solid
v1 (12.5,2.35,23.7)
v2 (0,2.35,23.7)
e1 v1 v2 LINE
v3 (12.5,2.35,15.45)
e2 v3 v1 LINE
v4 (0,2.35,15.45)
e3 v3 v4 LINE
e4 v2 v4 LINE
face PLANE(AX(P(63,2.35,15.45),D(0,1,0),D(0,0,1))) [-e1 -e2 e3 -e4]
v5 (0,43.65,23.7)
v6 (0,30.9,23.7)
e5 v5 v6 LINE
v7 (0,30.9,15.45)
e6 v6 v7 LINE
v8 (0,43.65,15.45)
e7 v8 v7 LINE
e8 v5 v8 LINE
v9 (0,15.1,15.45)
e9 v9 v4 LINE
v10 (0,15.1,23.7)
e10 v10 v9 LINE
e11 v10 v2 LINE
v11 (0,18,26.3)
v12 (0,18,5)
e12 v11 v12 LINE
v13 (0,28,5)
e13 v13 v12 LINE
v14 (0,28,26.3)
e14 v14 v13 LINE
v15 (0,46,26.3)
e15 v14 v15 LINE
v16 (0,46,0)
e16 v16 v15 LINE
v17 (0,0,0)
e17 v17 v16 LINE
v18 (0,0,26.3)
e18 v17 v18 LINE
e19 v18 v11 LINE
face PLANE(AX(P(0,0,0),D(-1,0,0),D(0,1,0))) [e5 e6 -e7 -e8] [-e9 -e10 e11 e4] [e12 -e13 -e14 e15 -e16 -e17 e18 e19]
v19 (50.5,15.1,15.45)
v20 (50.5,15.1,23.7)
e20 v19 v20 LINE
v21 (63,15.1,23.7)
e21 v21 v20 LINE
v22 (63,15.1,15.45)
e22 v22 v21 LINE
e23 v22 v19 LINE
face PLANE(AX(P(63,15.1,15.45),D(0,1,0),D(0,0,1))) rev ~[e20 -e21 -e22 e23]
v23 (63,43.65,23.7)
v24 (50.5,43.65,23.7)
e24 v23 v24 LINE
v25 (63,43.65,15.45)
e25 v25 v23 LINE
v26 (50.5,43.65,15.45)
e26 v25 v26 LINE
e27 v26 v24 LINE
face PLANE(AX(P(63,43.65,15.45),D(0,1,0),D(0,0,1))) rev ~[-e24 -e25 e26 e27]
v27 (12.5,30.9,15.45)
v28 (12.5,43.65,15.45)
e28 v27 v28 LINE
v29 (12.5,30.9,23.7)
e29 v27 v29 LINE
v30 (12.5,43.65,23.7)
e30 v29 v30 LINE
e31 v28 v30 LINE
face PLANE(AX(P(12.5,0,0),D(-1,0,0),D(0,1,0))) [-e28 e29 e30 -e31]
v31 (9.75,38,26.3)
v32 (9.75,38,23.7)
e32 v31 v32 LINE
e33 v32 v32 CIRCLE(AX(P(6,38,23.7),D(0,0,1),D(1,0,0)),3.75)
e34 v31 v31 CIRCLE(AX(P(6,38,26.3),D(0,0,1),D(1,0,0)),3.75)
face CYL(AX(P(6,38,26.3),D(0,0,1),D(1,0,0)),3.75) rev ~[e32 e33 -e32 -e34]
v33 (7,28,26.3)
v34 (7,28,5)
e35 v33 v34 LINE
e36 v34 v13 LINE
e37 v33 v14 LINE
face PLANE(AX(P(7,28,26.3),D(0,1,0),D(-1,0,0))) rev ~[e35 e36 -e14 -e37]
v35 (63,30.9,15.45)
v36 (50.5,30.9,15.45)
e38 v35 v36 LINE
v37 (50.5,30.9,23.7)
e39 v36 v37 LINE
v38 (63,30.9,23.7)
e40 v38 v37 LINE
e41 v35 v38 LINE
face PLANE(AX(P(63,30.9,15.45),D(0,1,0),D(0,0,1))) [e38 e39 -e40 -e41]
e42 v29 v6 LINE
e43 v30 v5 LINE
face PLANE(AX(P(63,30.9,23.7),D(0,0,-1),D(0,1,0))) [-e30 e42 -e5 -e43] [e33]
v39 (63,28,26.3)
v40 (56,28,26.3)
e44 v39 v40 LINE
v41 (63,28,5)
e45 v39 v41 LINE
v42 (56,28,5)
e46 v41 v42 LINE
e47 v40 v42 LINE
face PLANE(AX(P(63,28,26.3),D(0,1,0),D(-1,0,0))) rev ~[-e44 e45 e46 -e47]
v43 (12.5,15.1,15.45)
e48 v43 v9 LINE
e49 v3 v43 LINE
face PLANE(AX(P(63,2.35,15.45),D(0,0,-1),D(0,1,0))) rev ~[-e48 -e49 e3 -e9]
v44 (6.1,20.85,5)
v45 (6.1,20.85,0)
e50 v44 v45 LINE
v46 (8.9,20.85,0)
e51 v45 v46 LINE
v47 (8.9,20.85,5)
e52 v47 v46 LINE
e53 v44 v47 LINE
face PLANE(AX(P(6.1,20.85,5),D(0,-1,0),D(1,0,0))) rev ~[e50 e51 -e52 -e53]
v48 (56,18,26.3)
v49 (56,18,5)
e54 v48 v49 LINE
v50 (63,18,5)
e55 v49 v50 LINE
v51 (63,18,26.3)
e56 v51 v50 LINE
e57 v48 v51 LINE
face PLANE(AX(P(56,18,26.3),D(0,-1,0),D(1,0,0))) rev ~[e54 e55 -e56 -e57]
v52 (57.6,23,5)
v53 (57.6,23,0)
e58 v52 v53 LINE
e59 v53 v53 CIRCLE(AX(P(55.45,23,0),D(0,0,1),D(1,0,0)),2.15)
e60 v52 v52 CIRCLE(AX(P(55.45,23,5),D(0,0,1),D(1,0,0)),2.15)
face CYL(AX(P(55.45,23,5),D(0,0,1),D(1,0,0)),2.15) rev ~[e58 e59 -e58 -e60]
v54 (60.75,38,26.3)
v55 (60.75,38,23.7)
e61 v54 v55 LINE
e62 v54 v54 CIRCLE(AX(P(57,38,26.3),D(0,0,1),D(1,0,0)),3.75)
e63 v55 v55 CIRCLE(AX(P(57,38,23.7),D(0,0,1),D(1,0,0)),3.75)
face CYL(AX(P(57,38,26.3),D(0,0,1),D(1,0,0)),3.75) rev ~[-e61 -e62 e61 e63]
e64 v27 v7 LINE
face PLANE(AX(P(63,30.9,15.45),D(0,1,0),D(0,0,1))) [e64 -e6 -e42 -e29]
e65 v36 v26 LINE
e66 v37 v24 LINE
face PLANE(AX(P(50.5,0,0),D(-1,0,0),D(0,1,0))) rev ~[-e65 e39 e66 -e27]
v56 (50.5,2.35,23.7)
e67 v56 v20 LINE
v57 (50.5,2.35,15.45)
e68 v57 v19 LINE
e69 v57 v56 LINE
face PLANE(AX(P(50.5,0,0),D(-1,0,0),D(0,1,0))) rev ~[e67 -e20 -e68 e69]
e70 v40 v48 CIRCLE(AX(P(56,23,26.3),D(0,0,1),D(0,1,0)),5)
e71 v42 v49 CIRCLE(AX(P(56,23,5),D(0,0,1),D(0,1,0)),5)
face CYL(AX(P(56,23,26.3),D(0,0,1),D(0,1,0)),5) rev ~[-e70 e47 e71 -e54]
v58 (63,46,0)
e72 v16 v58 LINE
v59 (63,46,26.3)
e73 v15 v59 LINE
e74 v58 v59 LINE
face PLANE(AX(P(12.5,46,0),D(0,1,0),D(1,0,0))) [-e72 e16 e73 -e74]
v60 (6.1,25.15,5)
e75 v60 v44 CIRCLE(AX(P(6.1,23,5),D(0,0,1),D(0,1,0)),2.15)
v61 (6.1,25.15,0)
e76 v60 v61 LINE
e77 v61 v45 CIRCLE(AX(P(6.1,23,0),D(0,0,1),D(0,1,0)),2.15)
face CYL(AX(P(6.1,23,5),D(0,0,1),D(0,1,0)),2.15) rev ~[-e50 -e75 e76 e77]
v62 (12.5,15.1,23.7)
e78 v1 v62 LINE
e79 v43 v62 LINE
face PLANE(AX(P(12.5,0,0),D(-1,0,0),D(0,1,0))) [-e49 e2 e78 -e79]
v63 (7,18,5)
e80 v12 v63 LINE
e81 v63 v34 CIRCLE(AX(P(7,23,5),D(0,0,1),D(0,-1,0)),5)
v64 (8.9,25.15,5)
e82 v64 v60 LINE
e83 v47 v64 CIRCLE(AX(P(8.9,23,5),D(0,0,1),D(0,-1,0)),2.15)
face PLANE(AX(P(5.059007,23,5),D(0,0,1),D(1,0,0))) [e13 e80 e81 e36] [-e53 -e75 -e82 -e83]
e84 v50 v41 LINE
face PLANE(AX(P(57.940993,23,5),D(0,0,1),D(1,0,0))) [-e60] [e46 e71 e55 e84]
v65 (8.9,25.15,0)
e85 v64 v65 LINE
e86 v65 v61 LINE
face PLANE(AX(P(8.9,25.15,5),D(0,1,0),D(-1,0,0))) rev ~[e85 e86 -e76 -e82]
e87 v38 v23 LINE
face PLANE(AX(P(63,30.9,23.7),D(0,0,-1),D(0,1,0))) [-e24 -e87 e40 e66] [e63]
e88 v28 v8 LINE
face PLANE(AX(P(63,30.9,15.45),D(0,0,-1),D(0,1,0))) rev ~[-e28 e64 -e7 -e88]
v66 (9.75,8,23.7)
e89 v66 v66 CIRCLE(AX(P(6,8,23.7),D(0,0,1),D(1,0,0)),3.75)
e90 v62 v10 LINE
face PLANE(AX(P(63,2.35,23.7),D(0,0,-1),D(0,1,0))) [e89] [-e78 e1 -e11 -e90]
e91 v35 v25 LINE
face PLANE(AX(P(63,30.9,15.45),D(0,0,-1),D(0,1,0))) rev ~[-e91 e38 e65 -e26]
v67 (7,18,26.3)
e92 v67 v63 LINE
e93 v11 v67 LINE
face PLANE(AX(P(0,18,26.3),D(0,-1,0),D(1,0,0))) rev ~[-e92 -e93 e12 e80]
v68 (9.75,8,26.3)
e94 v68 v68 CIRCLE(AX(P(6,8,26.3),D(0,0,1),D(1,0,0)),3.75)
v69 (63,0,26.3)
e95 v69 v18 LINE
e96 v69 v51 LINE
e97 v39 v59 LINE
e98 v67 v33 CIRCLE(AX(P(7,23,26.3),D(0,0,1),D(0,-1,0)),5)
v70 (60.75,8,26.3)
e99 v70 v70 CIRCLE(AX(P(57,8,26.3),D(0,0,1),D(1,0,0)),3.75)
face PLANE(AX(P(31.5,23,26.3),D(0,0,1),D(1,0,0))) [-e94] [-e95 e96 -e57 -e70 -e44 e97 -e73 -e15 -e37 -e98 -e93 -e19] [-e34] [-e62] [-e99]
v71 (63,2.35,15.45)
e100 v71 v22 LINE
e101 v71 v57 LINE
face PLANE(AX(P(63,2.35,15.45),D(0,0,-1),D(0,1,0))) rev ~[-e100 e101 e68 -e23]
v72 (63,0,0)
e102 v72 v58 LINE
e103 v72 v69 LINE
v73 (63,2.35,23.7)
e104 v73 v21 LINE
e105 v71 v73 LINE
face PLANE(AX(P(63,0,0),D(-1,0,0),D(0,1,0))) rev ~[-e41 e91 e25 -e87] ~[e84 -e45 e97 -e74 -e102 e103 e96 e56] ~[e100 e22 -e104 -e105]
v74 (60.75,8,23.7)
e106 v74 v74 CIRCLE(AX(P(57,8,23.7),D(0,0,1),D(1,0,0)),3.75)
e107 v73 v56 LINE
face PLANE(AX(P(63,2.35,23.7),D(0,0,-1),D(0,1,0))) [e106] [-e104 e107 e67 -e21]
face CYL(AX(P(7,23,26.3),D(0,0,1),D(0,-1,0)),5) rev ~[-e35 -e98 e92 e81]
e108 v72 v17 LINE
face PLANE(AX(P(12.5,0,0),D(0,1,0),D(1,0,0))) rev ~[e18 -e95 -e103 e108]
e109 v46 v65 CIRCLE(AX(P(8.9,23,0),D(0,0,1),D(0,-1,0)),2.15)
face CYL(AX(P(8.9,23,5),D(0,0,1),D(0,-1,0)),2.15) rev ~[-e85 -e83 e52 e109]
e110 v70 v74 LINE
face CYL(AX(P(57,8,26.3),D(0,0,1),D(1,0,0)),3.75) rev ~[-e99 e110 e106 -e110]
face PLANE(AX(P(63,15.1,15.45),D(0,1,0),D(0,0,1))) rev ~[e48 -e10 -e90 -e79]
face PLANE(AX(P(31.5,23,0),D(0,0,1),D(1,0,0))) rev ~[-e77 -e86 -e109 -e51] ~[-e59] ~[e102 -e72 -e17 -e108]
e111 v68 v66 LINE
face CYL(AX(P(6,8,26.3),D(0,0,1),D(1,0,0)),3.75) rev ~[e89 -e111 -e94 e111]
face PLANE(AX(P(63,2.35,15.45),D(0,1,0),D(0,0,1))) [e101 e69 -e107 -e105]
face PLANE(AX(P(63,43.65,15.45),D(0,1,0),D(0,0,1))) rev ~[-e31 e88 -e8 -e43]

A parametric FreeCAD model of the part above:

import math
import FreeCAD as App
import Part
import Sketcher
from FreeCAD import Vector

doc = App.newDocument("Part")
body = doc.addObject("PartDesign::Body", "Body")

# Sketch on XY plane
sketch1 = doc.addObject("Sketcher::SketchObject", "Sketch")
body.addObject(sketch1)
sketch1.AttachmentSupport = (doc.XY_Plane, [""])
sketch1.MapMode = "FlatFace"
sketch1.addGeometry(Part.LineSegment(Vector(0, 46, 0), Vector(0, 0, 0)), False)
sketch1.addGeometry(Part.LineSegment(Vector(0, 0, 0), Vector(63, 0, 0)), False)
sketch1.addGeometry(Part.LineSegment(Vector(63, 0, 0), Vector(63, 46, 0)), False)
sketch1.addGeometry(Part.LineSegment(Vector(63, 46, 0), Vector(0, 46, 0)), False)
sketch1.addConstraint(Sketcher.Constraint("Coincident", 0, 2, 1, 1))
sketch1.addConstraint(Sketcher.Constraint("Coincident", 1, 2, 2, 1))
sketch1.addConstraint(Sketcher.Constraint("Coincident", 2, 2, 3, 1))
sketch1.addConstraint(Sketcher.Constraint("Coincident", 3, 2, 0, 1))
sketch1.addConstraint(Sketcher.Constraint("Vertical", 0))
sketch1.addConstraint(Sketcher.Constraint("Horizontal", 1))
sketch1.addConstraint(Sketcher.Constraint("Vertical", 2))
sketch1.addConstraint(Sketcher.Constraint("Horizontal", 3))
sketch1.addConstraint(Sketcher.Constraint("Coincident", 0, 2, -1, 1))
sketch1.addConstraint(Sketcher.Constraint("DistanceX", 1, 1, 1, 2, 63.0))
sketch1.addConstraint(Sketcher.Constraint("DistanceY", 0, 2, 0, 1, 46.0))
pad1 = doc.addObject("PartDesign::Pad", "Pad")
body.addObject(pad1)
pad1.Profile = sketch1
pad1.Length = 26.3

# Sketch on XY plane
sketch2 = doc.addObject("Sketcher::SketchObject", "Sketch001")
body.addObject(sketch2)
sketch2.AttachmentSupport = (doc.XY_Plane, [""])
sketch2.MapMode = "FlatFace"
sketch2.AttachmentOffset = App.Placement(Vector(0, 0, 26.3), App.Rotation())
sketch2.addGeometry(Part.LineSegment(Vector(7, 28, 0), Vector(0, 28, 0)), False)
sketch2.addGeometry(Part.LineSegment(Vector(0, 28, 0), Vector(0, 18, 0)), False)
sketch2.addGeometry(Part.LineSegment(Vector(0, 18, 0), Vector(7, 18, 0)), False)
sketch2.addGeometry(Part.ArcOfCircle(Part.Circle(Vector(7, 23, 0), Vector(0, 0, 1), 5), math.radians(-90), math.radians(90)), False)
sketch2.addGeometry(Part.LineSegment(Vector(63, 18, 0), Vector(63, 28, 0)), False)
sketch2.addGeometry(Part.LineSegment(Vector(63, 28, 0), Vector(56, 28, 0)), False)
sketch2.addGeometry(Part.ArcOfCircle(Part.Circle(Vector(56, 23, 0), Vector(0, 0, 1), 5), math.radians(90), math.radians(270)), False)
sketch2.addGeometry(Part.LineSegment(Vector(56, 18, 0), Vector(63, 18, 0)), False)
sketch2.addConstraint(Sketcher.Constraint("Coincident", 0, 2, 1, 1))
sketch2.addConstraint(Sketcher.Constraint("Coincident", 1, 2, 2, 1))
sketch2.addConstraint(Sketcher.Constraint("Tangent", 2, 2, 3, 1))
sketch2.addConstraint(Sketcher.Constraint("Tangent", 3, 2, 0, 1))
sketch2.addConstraint(Sketcher.Constraint("Coincident", 4, 2, 5, 1))
sketch2.addConstraint(Sketcher.Constraint("Tangent", 5, 2, 6, 1))
sketch2.addConstraint(Sketcher.Constraint("Tangent", 6, 2, 7, 1))
sketch2.addConstraint(Sketcher.Constraint("Coincident", 7, 2, 4, 1))
sketch2.addConstraint(Sketcher.Constraint("Horizontal", 0))
sketch2.addConstraint(Sketcher.Constraint("Vertical", 1))
sketch2.addConstraint(Sketcher.Constraint("Horizontal", 2))
sketch2.addConstraint(Sketcher.Constraint("Vertical", 4))
sketch2.addConstraint(Sketcher.Constraint("Horizontal", 5))
sketch2.addConstraint(Sketcher.Constraint("Horizontal", 7))
sketch2.addConstraint(Sketcher.Constraint("Equal", 3, 6))
sketch2.addConstraint(Sketcher.Constraint("PointOnObject", 0, 2, -2))
sketch2.addConstraint(Sketcher.Constraint("Horizontal", 3, 3, 6, 3))
sketch2.addConstraint(Sketcher.Constraint("Equal", 2, 5))
sketch2.addConstraint(Sketcher.Constraint("Radius", 3, 5.0))
sketch2.addConstraint(Sketcher.Constraint("DistanceX", 0, 2, 0, 1, 7.0))
sketch2.addConstraint(Sketcher.Constraint("DistanceY", -1, 1, 3, 3, 23.0))
sketch2.addConstraint(Sketcher.Constraint("DistanceX", -1, 1, 6, 3, 56.0))
pocket1 = doc.addObject("PartDesign::Pocket", "Pocket")
body.addObject(pocket1)
pocket1.Profile = sketch2
pocket1.Length = 21.3

# Sketch on XY plane
sketch3 = doc.addObject("Sketcher::SketchObject", "Sketch002")
body.addObject(sketch3)
sketch3.AttachmentSupport = (doc.XY_Plane, [""])
sketch3.MapMode = "FlatFace"
sketch3.AttachmentOffset = App.Placement(Vector(0, 0, 5), App.Rotation())
sketch3.addGeometry(Part.LineSegment(Vector(8.9, 25.1, 0), Vector(6.1, 25.1, 0)), False)
sketch3.addGeometry(Part.ArcOfCircle(Part.Circle(Vector(6.1, 23, 0), Vector(0, 0, 1), 2.1), math.radians(90), math.radians(270)), False)
sketch3.addGeometry(Part.LineSegment(Vector(6.1, 20.9, 0), Vector(8.9, 20.9, 0)), False)
sketch3.addGeometry(Part.ArcOfCircle(Part.Circle(Vector(8.9, 23, 0), Vector(0, 0, 1), 2.1), math.radians(-90), math.radians(90)), False)
sketch3.addGeometry(Part.Circle(Vector(55.5, 23, 0), Vector(0, 0, 1), 2.1), False)
sketch3.addConstraint(Sketcher.Constraint("Tangent", 0, 2, 1, 1))
sketch3.addConstraint(Sketcher.Constraint("Tangent", 1, 2, 2, 1))
sketch3.addConstraint(Sketcher.Constraint("Tangent", 2, 2, 3, 1))
sketch3.addConstraint(Sketcher.Constraint("Tangent", 3, 2, 0, 1))
sketch3.addConstraint(Sketcher.Constraint("Horizontal", 0))
sketch3.addConstraint(Sketcher.Constraint("Horizontal", 2))
sketch3.addConstraint(Sketcher.Constraint("Equal", 3, 4))
sketch3.addConstraint(Sketcher.Constraint("Horizontal", 3, 3, 4, 3))
sketch3.addConstraint(Sketcher.Constraint("Diameter", 4, 4.3))
sketch3.addConstraint(Sketcher.Constraint("DistanceX", 0, 2, 0, 1, 2.8))
sketch3.addConstraint(Sketcher.Constraint("DistanceY", -1, 1, 1, 3, 23.0))
sketch3.addConstraint(Sketcher.Constraint("DistanceX", -1, 1, 1, 3, 6.1))
sketch3.addConstraint(Sketcher.Constraint("DistanceX", -1, 1, 4, 3, 55.45))
pocket2 = doc.addObject("PartDesign::Pocket", "Pocket001")
body.addObject(pocket2)
pocket2.Profile = sketch3
pocket2.Type = "ThroughAll"

# Sketch on YZ plane
sketch4 = doc.addObject("Sketcher::SketchObject", "Sketch003")
body.addObject(sketch4)
sketch4.AttachmentSupport = (doc.YZ_Plane, [""])
sketch4.MapMode = "FlatFace"
sketch4.AttachmentOffset = App.Placement(Vector(0, 0, 63), App.Rotation())
sketch4.addGeometry(Part.LineSegment(Vector(31, 24, 0), Vector(31, 15, 0)), False)
sketch4.addGeometry(Part.LineSegment(Vector(31, 15, 0), Vector(44, 15, 0)), False)
sketch4.addGeometry(Part.LineSegment(Vector(44, 15, 0), Vector(44, 24, 0)), False)
sketch4.addGeometry(Part.LineSegment(Vector(44, 24, 0), Vector(31, 24, 0)), False)
sketch4.addGeometry(Part.LineSegment(Vector(2, 24, 0), Vector(2, 15, 0)), False)
sketch4.addGeometry(Part.LineSegment(Vector(2, 15, 0), Vector(15, 15, 0)), False)
sketch4.addGeometry(Part.LineSegment(Vector(15, 15, 0), Vector(15, 24, 0)), False)
sketch4.addGeometry(Part.LineSegment(Vector(15, 24, 0), Vector(2, 24, 0)), False)
sketch4.addConstraint(Sketcher.Constraint("Coincident", 0, 2, 1, 1))
sketch4.addConstraint(Sketcher.Constraint("Coincident", 1, 2, 2, 1))
sketch4.addConstraint(Sketcher.Constraint("Coincident", 2, 2, 3, 1))
sketch4.addConstraint(Sketcher.Constraint("Coincident", 3, 2, 0, 1))
sketch4.addConstraint(Sketcher.Constraint("Coincident", 4, 2, 5, 1))
sketch4.addConstraint(Sketcher.Constraint("Coincident", 5, 2, 6, 1))
sketch4.addConstraint(Sketcher.Constraint("Coincident", 6, 2, 7, 1))
sketch4.addConstraint(Sketcher.Constraint("Coincident", 7, 2, 4, 1))
sketch4.addConstraint(Sketcher.Constraint("Vertical", 0))
sketch4.addConstraint(Sketcher.Constraint("Horizontal", 1))
sketch4.addConstraint(Sketcher.Constraint("Vertical", 2))
sketch4.addConstraint(Sketcher.Constraint("Horizontal", 3))
sketch4.addConstraint(Sketcher.Constraint("Vertical", 4))
sketch4.addConstraint(Sketcher.Constraint("Horizontal", 5))
sketch4.addConstraint(Sketcher.Constraint("Vertical", 6))
sketch4.addConstraint(Sketcher.Constraint("Horizontal", 7))
sketch4.addConstraint(Sketcher.Constraint("Horizontal", 1, 2, 4, 2))
sketch4.addConstraint(Sketcher.Constraint("Horizontal", 3, 2, 6, 2))
sketch4.addConstraint(Sketcher.Constraint("Equal", 3, 5))
sketch4.addConstraint(Sketcher.Constraint("DistanceX", 1, 1, 1, 2, 12.75))
sketch4.addConstraint(Sketcher.Constraint("DistanceY", 0, 2, 0, 1, 8.25))
sketch4.addConstraint(Sketcher.Constraint("DistanceX", -1, 1, 0, 2, 30.9))
sketch4.addConstraint(Sketcher.Constraint("DistanceY", -1, 1, 2, 2, 23.7))
sketch4.addConstraint(Sketcher.Constraint("DistanceX", -1, 1, 5, 2, 15.1))
pocket3 = doc.addObject("PartDesign::Pocket", "Pocket002")
body.addObject(pocket3)
pocket3.Profile = sketch4
pocket3.Type = "ThroughAll"

# Sketch on XY plane
sketch5 = doc.addObject("Sketcher::SketchObject", "Sketch004")
body.addObject(sketch5)
sketch5.AttachmentSupport = (doc.XY_Plane, [""])
sketch5.MapMode = "FlatFace"
sketch5.addGeometry(Part.LineSegment(Vector(12, 46, 0), Vector(12, 0, 0)), False)
sketch5.addGeometry(Part.LineSegment(Vector(12, 0, 0), Vector(50, 0, 0)), False)
sketch5.addGeometry(Part.LineSegment(Vector(50, 0, 0), Vector(50, 46, 0)), False)
sketch5.addGeometry(Part.LineSegment(Vector(50, 46, 0), Vector(12, 46, 0)), False)
sketch5.addConstraint(Sketcher.Constraint("Coincident", 0, 2, 1, 1))
sketch5.addConstraint(Sketcher.Constraint("Coincident", 1, 2, 2, 1))
sketch5.addConstraint(Sketcher.Constraint("Coincident", 2, 2, 3, 1))
sketch5.addConstraint(Sketcher.Constraint("Coincident", 3, 2, 0, 1))
sketch5.addConstraint(Sketcher.Constraint("Vertical", 0))
sketch5.addConstraint(Sketcher.Constraint("Horizontal", 1))
sketch5.addConstraint(Sketcher.Constraint("Vertical", 2))
sketch5.addConstraint(Sketcher.Constraint("Horizontal", 3))
sketch5.addConstraint(Sketcher.Constraint("PointOnObject", 0, 2, -1))
sketch5.addConstraint(Sketcher.Constraint("DistanceX", 1, 1, 1, 2, 38.0))
sketch5.addConstraint(Sketcher.Constraint("DistanceY", 0, 2, 0, 1, 46.0))
sketch5.addConstraint(Sketcher.Constraint("DistanceX", -1, 1, 0, 2, 12.5))
pad2 = doc.addObject("PartDesign::Pad", "Pad001")
body.addObject(pad2)
pad2.Profile = sketch5
pad2.Type = "UpToLast"

# Sketch on XY plane
sketch6 = doc.addObject("Sketcher::SketchObject", "Sketch005")
body.addObject(sketch6)
sketch6.AttachmentSupport = (doc.XY_Plane, [""])
sketch6.MapMode = "FlatFace"
sketch6.AttachmentOffset = App.Placement(Vector(0, 0, 26.3), App.Rotation())
sketch6.addGeometry(Part.Circle(Vector(6, 38, 0), Vector(0, 0, 1), 3.8), False)
sketch6.addGeometry(Part.Circle(Vector(6, 8, 0), Vector(0, 0, 1), 3.8), False)
sketch6.addGeometry(Part.Circle(Vector(57, 38, 0), Vector(0, 0, 1), 3.8), False)
sketch6.addGeometry(Part.Circle(Vector(57, 8, 0), Vector(0, 0, 1), 3.8), False)
sketch6.addConstraint(Sketcher.Constraint("Equal", 0, 1))
sketch6.addConstraint(Sketcher.Constraint("Equal", 1, 2))
sketch6.addConstraint(Sketcher.Constraint("Equal", 2, 3))
sketch6.addConstraint(Sketcher.Constraint("Horizontal", 0, 3, 2, 3))
sketch6.addConstraint(Sketcher.Constraint("Horizontal", 1, 3, 3, 3))
sketch6.addConstraint(Sketcher.Constraint("Vertical", 0, 3, 1, 3))
sketch6.addConstraint(Sketcher.Constraint("Vertical", 2, 3, 3, 3))
sketch6.addConstraint(Sketcher.Constraint("Diameter", 0, 7.5))
sketch6.addConstraint(Sketcher.Constraint("DistanceX", -1, 1, 0, 3, 6.0))
sketch6.addConstraint(Sketcher.Constraint("DistanceY", -1, 1, 0, 3, 38.0))
sketch6.addConstraint(Sketcher.Constraint("DistanceY", -1, 1, 1, 3, 8.0))
sketch6.addConstraint(Sketcher.Constraint("DistanceX", -1, 1, 2, 3, 57.0))
pocket4 = doc.addObject("PartDesign::Pocket", "Pocket003")
body.addObject(pocket4)
pocket4.Profile = sketch6
pocket4.Length = 2.6

doc.recompute()
